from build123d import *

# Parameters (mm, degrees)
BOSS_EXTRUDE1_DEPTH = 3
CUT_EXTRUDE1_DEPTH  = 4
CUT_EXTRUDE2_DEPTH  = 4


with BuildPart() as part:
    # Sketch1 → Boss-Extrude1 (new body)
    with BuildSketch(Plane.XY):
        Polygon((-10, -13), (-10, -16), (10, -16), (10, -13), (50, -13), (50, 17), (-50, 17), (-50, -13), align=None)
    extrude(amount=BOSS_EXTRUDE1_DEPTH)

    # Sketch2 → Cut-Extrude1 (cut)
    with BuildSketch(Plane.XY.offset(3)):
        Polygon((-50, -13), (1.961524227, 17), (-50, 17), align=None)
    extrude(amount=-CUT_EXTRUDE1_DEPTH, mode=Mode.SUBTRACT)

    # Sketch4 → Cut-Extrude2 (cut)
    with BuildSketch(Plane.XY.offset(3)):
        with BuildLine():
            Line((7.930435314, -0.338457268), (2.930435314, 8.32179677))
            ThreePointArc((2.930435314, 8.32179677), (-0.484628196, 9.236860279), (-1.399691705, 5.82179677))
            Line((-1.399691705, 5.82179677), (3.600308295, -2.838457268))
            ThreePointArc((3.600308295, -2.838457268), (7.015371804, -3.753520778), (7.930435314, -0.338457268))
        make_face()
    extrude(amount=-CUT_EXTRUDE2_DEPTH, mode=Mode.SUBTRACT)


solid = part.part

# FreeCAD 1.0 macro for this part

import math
import FreeCAD as App
import Part
import Sketcher
Q = App.Units.Quantity


def add_polygon(sketch, points):
    """Adds a closed chain of lines whose ends are joined by coincident constraints."""
    first, n = sketch.GeometryCount, len(points)
    for a, b in zip(points, points[1:] + points[:1]):
        sketch.addGeometry(Part.LineSegment(App.Vector(*a, 0), App.Vector(*b, 0)), False)
    for i in range(n):
        sketch.addConstraint(Sketcher.Constraint("Coincident", first + i, 2, first + (i + 1) % n, 1))

doc = App.newDocument("Part")
body = doc.addObject("PartDesign::Body", "Body")

# Sketch on XY plane
sketch1 = body.newObject("Sketcher::SketchObject", "Sketch")
sketch1.AttachmentSupport = (doc.getObject("XY_Plane"), [""])
sketch1.MapMode = "FlatFace"
add_polygon(sketch1, [(-10, -13), (-10, -16), (10, -16), (10, -13), (50, -13), (50, 17), (-50, 17), (-50, -13)])  # lines 0-7
sketch1.addConstraint(Sketcher.Constraint("Vertical", 0))
sketch1.addConstraint(Sketcher.Constraint("Horizontal", 1))
sketch1.addConstraint(Sketcher.Constraint("Vertical", 2))
sketch1.addConstraint(Sketcher.Constraint("Horizontal", 3))
sketch1.addConstraint(Sketcher.Constraint("Vertical", 4))
sketch1.addConstraint(Sketcher.Constraint("Horizontal", 5))
sketch1.addConstraint(Sketcher.Constraint("Vertical", 6))
sketch1.addConstraint(Sketcher.Constraint("Horizontal", 7))
sketch1.addConstraint(Sketcher.Constraint("Symmetric", 3, 2, 6, 2, -2))
sketch1.addConstraint(Sketcher.Constraint("Equal", 3, 7))
sketch1.addConstraint(Sketcher.Constraint("DistanceX", 1, 1, 1, 2, 20.0))
sketch1.addConstraint(Sketcher.Constraint("DistanceX", 3, 1, 3, 2, 40.0))
sketch1.addConstraint(Sketcher.Constraint("DistanceY", 0, 2, 0, 1, 3.0))
sketch1.addConstraint(Sketcher.Constraint("DistanceY", 4, 1, 4, 2, 30.0))
sketch1.addConstraint(Sketcher.Constraint("DistanceY", 0, 2, -1, 1, 16.0))
pad1 = body.newObject("PartDesign::Pad", "Pad")
pad1.Profile = sketch1
pad1.Length = 3

# Sketch on XY plane
sketch2 = body.newObject("Sketcher::SketchObject", "Sketch001")
sketch2.AttachmentSupport = (doc.getObject("XY_Plane"), [""])
sketch2.MapMode = "FlatFace"
sketch2.AttachmentOffset = App.Placement(App.Vector(0, 0, 3), App.Rotation())
add_polygon(sketch2, [(-50, -13), (2, 17), (-50, 17)])  # lines 0-2
sketch2.addConstraint(Sketcher.Constraint("Horizontal", 1))
sketch2.addConstraint(Sketcher.Constraint("Vertical", 2))
sketch2.addConstraint(Sketcher.Constraint("DistanceY", 2, 2, 2, 1, 30.0))
sketch2.addConstraint(Sketcher.Constraint("Angle", 0, Q("30 deg")))
sketch2.addConstraint(Sketcher.Constraint("DistanceY", -1, 1, 0, 2, 17.0))
sketch2.addConstraint(Sketcher.Constraint("DistanceX", 1, 2, -1, 1, 50.0))
pocket1 = body.newObject("PartDesign::Pocket", "Pocket")
pocket1.Profile = sketch2
pocket1.Length = 4

# Sketch on XY plane
sketch3 = body.newObject("Sketcher::SketchObject", "Sketch002")
sketch3.AttachmentSupport = (doc.getObject("XY_Plane"), [""])
sketch3.MapMode = "FlatFace"
sketch3.AttachmentOffset = App.Placement(App.Vector(0, 0, 3), App.Rotation())
sketch3.addGeometry(Part.LineSegment(App.Vector(7.9, -0.3, 0), App.Vector(2.9, 8.3, 0)), False)
sketch3.addGeometry(Part.ArcOfCircle(Part.Circle(App.Vector(0.8, 7.1, 0), App.Vector(0, 0, 1), 2.5), math.radians(30), math.radians(210)), False)
sketch3.addGeometry(Part.LineSegment(App.Vector(-1.4, 5.8, 0), App.Vector(3.6, -2.8, 0)), False)
sketch3.addGeometry(Part.ArcOfCircle(Part.Circle(App.Vector(5.8, -1.6, 0), App.Vector(0, 0, 1), 2.5), math.radians(-150), math.radians(30)), False)
sketch3.addConstraint(Sketcher.Constraint("Tangent", 0, 2, 1, 1))
sketch3.addConstraint(Sketcher.Constraint("Tangent", 1, 2, 2, 1))
sketch3.addConstraint(Sketcher.Constraint("Tangent", 2, 2, 3, 1))
sketch3.addConstraint(Sketcher.Constraint("Tangent", 3, 2, 0, 1))
sketch3.addConstraint(Sketcher.Constraint("Equal", 1, 3))
sketch3.addConstraint(Sketcher.Constraint("Radius", 1, 2.5))
sketch3.addConstraint(Sketcher.Constraint("Angle", 0, Q("120 deg")))
sketch3.addConstraint(Sketcher.Constraint("Distance", 0, 10.0))
sketch3.addConstraint(Sketcher.Constraint("DistanceX", -1, 1, 1, 3, 0.765372))
sketch3.addConstraint(Sketcher.Constraint("DistanceY", -1, 1, 1, 3, 7.071797))
pocket2 = body.newObject("PartDesign::Pocket", "Pocket001")
pocket2.Profile = sketch3
pocket2.Length = 4

doc.recompute()
